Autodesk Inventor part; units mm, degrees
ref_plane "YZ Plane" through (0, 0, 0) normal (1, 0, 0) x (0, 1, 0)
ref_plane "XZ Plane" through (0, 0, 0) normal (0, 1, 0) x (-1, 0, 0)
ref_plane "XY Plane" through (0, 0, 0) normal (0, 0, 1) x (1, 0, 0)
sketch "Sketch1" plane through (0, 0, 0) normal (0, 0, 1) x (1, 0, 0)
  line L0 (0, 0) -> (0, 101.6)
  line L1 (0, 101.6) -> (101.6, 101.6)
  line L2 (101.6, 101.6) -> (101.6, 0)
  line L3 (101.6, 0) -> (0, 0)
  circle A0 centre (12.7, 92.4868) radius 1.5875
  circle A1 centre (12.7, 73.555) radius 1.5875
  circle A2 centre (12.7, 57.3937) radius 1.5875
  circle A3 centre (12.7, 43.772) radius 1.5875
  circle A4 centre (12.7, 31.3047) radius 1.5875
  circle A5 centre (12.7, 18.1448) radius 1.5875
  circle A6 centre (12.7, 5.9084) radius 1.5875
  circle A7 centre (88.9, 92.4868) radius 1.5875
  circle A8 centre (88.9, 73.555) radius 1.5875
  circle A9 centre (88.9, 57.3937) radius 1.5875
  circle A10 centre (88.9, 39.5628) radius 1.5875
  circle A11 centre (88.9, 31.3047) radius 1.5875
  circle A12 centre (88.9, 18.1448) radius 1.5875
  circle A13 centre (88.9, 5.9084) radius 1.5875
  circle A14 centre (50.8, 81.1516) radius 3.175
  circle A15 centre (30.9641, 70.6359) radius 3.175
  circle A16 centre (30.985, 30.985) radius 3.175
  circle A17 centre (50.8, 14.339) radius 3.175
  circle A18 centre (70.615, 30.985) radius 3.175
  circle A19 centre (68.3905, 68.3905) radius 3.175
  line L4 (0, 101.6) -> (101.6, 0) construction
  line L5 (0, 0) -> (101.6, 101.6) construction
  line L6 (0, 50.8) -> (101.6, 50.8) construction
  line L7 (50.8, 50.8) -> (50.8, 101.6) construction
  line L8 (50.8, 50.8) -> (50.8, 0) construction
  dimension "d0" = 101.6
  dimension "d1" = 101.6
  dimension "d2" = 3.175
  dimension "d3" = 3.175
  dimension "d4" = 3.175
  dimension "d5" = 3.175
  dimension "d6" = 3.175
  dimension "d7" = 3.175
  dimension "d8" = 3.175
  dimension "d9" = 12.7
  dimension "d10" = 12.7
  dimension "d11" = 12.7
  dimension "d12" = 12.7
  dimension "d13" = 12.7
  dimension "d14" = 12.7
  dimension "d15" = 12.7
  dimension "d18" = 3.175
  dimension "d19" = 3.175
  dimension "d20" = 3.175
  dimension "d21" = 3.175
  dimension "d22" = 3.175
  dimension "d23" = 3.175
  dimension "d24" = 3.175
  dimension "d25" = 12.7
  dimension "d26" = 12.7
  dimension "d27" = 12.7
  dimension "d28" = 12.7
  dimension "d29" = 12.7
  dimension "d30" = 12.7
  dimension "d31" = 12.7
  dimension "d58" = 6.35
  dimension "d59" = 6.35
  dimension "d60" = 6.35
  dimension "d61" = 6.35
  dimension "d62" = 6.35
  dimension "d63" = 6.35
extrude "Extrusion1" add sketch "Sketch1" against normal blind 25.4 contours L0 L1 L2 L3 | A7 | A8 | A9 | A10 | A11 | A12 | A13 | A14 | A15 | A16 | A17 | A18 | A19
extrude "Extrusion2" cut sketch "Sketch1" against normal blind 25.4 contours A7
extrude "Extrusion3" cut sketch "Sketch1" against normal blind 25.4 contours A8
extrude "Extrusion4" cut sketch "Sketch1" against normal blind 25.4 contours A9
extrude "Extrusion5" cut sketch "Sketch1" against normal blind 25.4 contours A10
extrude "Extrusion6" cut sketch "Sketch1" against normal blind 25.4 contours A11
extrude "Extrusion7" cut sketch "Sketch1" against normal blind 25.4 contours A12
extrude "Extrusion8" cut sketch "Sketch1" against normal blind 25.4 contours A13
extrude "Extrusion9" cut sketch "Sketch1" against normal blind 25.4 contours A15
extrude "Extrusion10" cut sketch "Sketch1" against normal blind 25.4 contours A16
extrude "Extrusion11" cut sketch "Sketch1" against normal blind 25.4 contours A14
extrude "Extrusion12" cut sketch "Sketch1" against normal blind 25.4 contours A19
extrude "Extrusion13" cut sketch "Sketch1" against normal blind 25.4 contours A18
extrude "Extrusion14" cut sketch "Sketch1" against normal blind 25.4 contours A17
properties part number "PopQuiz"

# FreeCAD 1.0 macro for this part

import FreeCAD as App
import Part
import Sketcher
Q = App.Units.Quantity

doc = App.newDocument("Part")
body = doc.addObject("PartDesign::Body", "Body")

# Sketch on XY plane
sketch1 = body.newObject("Sketcher::SketchObject", "Sketch")
sketch1.AttachmentSupport = (doc.getObject("XY_Plane"), [""])
sketch1.MapMode = "FlatFace"
sketch1.addGeometry(Part.LineSegment(App.Vector(0, 101.6, 0), App.Vector(0, 0, 0)), False)
sketch1.addGeometry(Part.LineSegment(App.Vector(0, 0, 0), App.Vector(101.6, 0, 0)), False)
sketch1.addGeometry(Part.LineSegment(App.Vector(101.6, 0, 0), App.Vector(101.6, 101.6, 0)), False)
sketch1.addGeometry(Part.LineSegment(App.Vector(101.6, 101.6, 0), App.Vector(0, 101.6, 0)), False)
sketch1.addGeometry(Part.Circle(App.Vector(12.7, 5.9084, 0), App.Vector(0, 0, 1), 1.5875), False)
sketch1.addGeometry(Part.Circle(App.Vector(12.7, 18.1448, 0), App.Vector(0, 0, 1), 1.5875), False)
sketch1.addGeometry(Part.Circle(App.Vector(12.7, 31.3047, 0), App.Vector(0, 0, 1), 1.5875), False)
sketch1.addGeometry(Part.Circle(App.Vector(12.7, 43.772, 0), App.Vector(0, 0, 1), 1.5875), False)
sketch1.addGeometry(Part.Circle(App.Vector(12.7, 57.3937, 0), App.Vector(0, 0, 1), 1.5875), False)
sketch1.addGeometry(Part.Circle(App.Vector(12.7, 73.555, 0), App.Vector(0, 0, 1), 1.5875), False)
sketch1.addGeometry(Part.Circle(App.Vector(12.7, 92.4868, 0), App.Vector(0, 0, 1), 1.5875), False)
sketch1.addConstraint(Sketcher.Constraint("Coincident", 0, 2, 1, 1))
sketch1.addConstraint(Sketcher.Constraint("Coincident", 1, 2, 2, 1))
sketch1.addConstraint(Sketcher.Constraint("Coincident", 2, 2, 3, 1))
sketch1.addConstraint(Sketcher.Constraint("Coincident", 3, 2, 0, 1))
sketch1.addConstraint(Sketcher.Constraint("Vertical", 0))
sketch1.addConstraint(Sketcher.Constraint("Horizontal", 1))
sketch1.addConstraint(Sketcher.Constraint("Vertical", 2))
sketch1.addConstraint(Sketcher.Constraint("Horizontal", 3))
sketch1.addConstraint(Sketcher.Constraint("Coincident", 0, 2, -1, 1))
sketch1.addConstraint(Sketcher.Constraint("Equal", 4, 5))
sketch1.addConstraint(Sketcher.Constraint("Equal", 5, 6))
sketch1.addConstraint(Sketcher.Constraint("Equal", 6, 7))
sketch1.addConstraint(Sketcher.Constraint("Equal", 7, 8))
sketch1.addConstraint(Sketcher.Constraint("Equal", 8, 9))
sketch1.addConstraint(Sketcher.Constraint("Equal", 9, 10))
sketch1.addConstraint(Sketcher.Constraint("Vertical", 4, 3, 5, 3))
sketch1.addConstraint(Sketcher.Constraint("Vertical", 5, 3, 6, 3))
sketch1.addConstraint(Sketcher.Constraint("Vertical", 6, 3, 7, 3))
sketch1.addConstraint(Sketcher.Constraint("Vertical", 7, 3, 8, 3))
sketch1.addConstraint(Sketcher.Constraint("Vertical", 8, 3, 9, 3))
sketch1.addConstraint(Sketcher.Constraint("Vertical", 9, 3, 10, 3))
sketch1.addConstraint(Sketcher.Constraint("Equal", 3, 0))
sketch1.addConstraint(Sketcher.Constraint("DistanceX", 1, 1, 1, 2, Q("4 in")))
sketch1.addConstraint(Sketcher.Constraint("Diameter", 4, Q("0.125 in")))
sketch1.addConstraint(Sketcher.Constraint("DistanceX", -1, 1, 4, 3, Q("0.5 in")))
sketch1.addConstraint(Sketcher.Constraint("DistanceY", -1, 1, 7, 3, Q("1.7233 in")))
sketch1.addConstraint(Sketcher.Constraint("DistanceY", -1, 1, 8, 3, Q("2.2596 in")))
sketch1.addConstraint(Sketcher.Constraint("DistanceY", 5, 3, 6, 3, Q("0.5181 in")))
sketch1.addConstraint(Sketcher.Constraint("DistanceY", 4, 3, 7, 3, Q("1.4907 in")))
sketch1.addConstraint(Sketcher.Constraint("DistanceY", 6, 3, 9, 3, Q("1.6634 in")))
sketch1.addConstraint(Sketcher.Constraint("DistanceY", 7, 3, 10, 3, Q("1.9179 in")))
sketch1.addConstraint(Sketcher.Constraint("DistanceY", -1, 1, 5, 3, Q("18.1448 mm")))
pad1 = body.newObject("PartDesign::Pad", "Pad")
pad1.Profile = sketch1
pad1.Length = Q("1 in")
pad1.Reversed = True

# Sketch on XY plane
sketch2 = body.newObject("Sketcher::SketchObject", "Sketch001")
sketch2.AttachmentSupport = (doc.getObject("XY_Plane"), [""])
sketch2.MapMode = "FlatFace"
sketch2.addGeometry(Part.Circle(App.Vector(88.9, 92.4868, 0), App.Vector(0, 0, 1), 1.5875), False)
sketch2.addConstraint(Sketcher.Constraint("Diameter", 0, Q("0.125 in")))
sketch2.addConstraint(Sketcher.Constraint("DistanceX", -1, 1, 0, 3, Q("3.5 in")))
sketch2.addConstraint(Sketcher.Constraint("DistanceY", -1, 1, 0, 3, Q("92.4868 mm")))
pocket1 = body.newObject("PartDesign::Pocket", "Pocket")
pocket1.Profile = sketch2
pocket1.Length = Q("1 in")

# Sketch on XY plane
sketch3 = body.newObject("Sketcher::SketchObject", "Sketch002")
sketch3.AttachmentSupport = (doc.getObject("XY_Plane"), [""])
sketch3.MapMode = "FlatFace"
sketch3.addGeometry(Part.Circle(App.Vector(88.9, 73.555, 0), App.Vector(0, 0, 1), 1.5875), False)
sketch3.addConstraint(Sketcher.Constraint("Diameter", 0, Q("0.125 in")))
sketch3.addConstraint(Sketcher.Constraint("DistanceX", -1, 1, 0, 3, Q("3.5 in")))
sketch3.addConstraint(Sketcher.Constraint("DistanceY", -1, 1, 0, 3, Q("73.555 mm")))
pocket2 = body.newObject("PartDesign::Pocket", "Pocket001")
pocket2.Profile = sketch3
pocket2.Length = Q("1 in")

# Sketch on XY plane
sketch4 = body.newObject("Sketcher::SketchObject", "Sketch003")
sketch4.AttachmentSupport = (doc.getObject("XY_Plane"), [""])
sketch4.MapMode = "FlatFace"
sketch4.addGeometry(Part.Circle(App.Vector(88.9, 57.3937, 0), App.Vector(0, 0, 1), 1.5875), False)
sketch4.addConstraint(Sketcher.Constraint("Diameter", 0, Q("0.125 in")))
sketch4.addConstraint(Sketcher.Constraint("DistanceX", -1, 1, 0, 3, Q("3.5 in")))
sketch4.addConstraint(Sketcher.Constraint("DistanceY", -1, 1, 0, 3, Q("2.2596 in")))
pocket3 = body.newObject("PartDesign::Pocket", "Pocket002")
pocket3.Profile = sketch4
pocket3.Length = Q("1 in")

# Sketch on XY plane
sketch5 = body.newObject("Sketcher::SketchObject", "Sketch004")
sketch5.AttachmentSupport = (doc.getObject("XY_Plane"), [""])
sketch5.MapMode = "FlatFace"
sketch5.addGeometry(Part.Circle(App.Vector(88.9, 39.5628, 0), App.Vector(0, 0, 1), 1.5875), False)
sketch5.addConstraint(Sketcher.Constraint("Diameter", 0, Q("0.125 in")))
sketch5.addConstraint(Sketcher.Constraint("DistanceX", -1, 1, 0, 3, Q("3.5 in")))
sketch5.addConstraint(Sketcher.Constraint("DistanceY", -1, 1, 0, 3, Q("1.5576 in")))
pocket4 = body.newObject("PartDesign::Pocket", "Pocket003")
pocket4.Profile = sketch5
pocket4.Length = Q("1 in")

# Sketch on XY plane
sketch6 = body.newObject("Sketcher::SketchObject", "Sketch005")
sketch6.AttachmentSupport = (doc.getObject("XY_Plane"), [""])
sketch6.MapMode = "FlatFace"
sketch6.addGeometry(Part.Circle(App.Vector(88.9, 31.3047, 0), App.Vector(0, 0, 1), 1.5875), False)
sketch6.addConstraint(Sketcher.Constraint("Diameter", 0, Q("0.125 in")))
sketch6.addConstraint(Sketcher.Constraint("DistanceX", -1, 1, 0, 3, Q("3.5 in")))
sketch6.addConstraint(Sketcher.Constraint("DistanceY", -1, 1, 0, 3, Q("31.3047 mm")))
pocket5 = body.newObject("PartDesign::Pocket", "Pocket004")
pocket5.Profile = sketch6
pocket5.Length = Q("1 in")

# Sketch on XY plane
sketch7 = body.newObject("Sketcher::SketchObject", "Sketch006")
sketch7.AttachmentSupport = (doc.getObject("XY_Plane"), [""])
sketch7.MapMode = "FlatFace"
sketch7.addGeometry(Part.Circle(App.Vector(88.9, 18.1448, 0), App.Vector(0, 0, 1), 1.5875), False)
sketch7.addConstraint(Sketcher.Constraint("Diameter", 0, Q("0.125 in")))
sketch7.addConstraint(Sketcher.Constraint("DistanceX", -1, 1, 0, 3, Q("3.5 in")))
sketch7.addConstraint(Sketcher.Constraint("DistanceY", -1, 1, 0, 3, Q("18.1448 mm")))
pocket6 = body.newObject("PartDesign::Pocket", "Pocket005")
pocket6.Profile = sketch7
pocket6.Length = Q("1 in")

# Sketch on XY plane
sketch8 = body.newObject("Sketcher::SketchObject", "Sketch007")
sketch8.AttachmentSupport = (doc.getObject("XY_Plane"), [""])
sketch8.MapMode = "FlatFace"
sketch8.addGeometry(Part.Circle(App.Vector(88.9, 5.9084, 0), App.Vector(0, 0, 1), 1.5875), False)
sketch8.addConstraint(Sketcher.Constraint("Diameter", 0, Q("0.125 in")))
sketch8.addConstraint(Sketcher.Constraint("DistanceX", -1, 1, 0, 3, Q("3.5 in")))
sketch8.addConstraint(Sketcher.Constraint("DistanceY", -1, 1, 0, 3, Q("5.9084 mm")))
pocket7 = body.newObject("PartDesign::Pocket", "Pocket006")
pocket7.Profile = sketch8
pocket7.Length = Q("1 in")

# Sketch on XY plane
sketch9 = body.newObject("Sketcher::SketchObject", "Sketch008")
sketch9.AttachmentSupport = (doc.getObject("XY_Plane"), [""])
sketch9.MapMode = "FlatFace"
sketch9.addGeometry(Part.Circle(App.Vector(30.9641, 70.6359, 0), App.Vector(0, 0, 1), 3.175), False)
sketch9.addConstraint(Sketcher.Constraint("Diameter", 0, Q("0.25 in")))
sketch9.addConstraint(Sketcher.Constraint("DistanceX", -1, 1, 0, 3, Q("30.964 mm")))
sketch9.addConstraint(Sketcher.Constraint("DistanceY", -1, 1, 0, 3, Q("70.636 mm")))
pocket8 = body.newObject("PartDesign::Pocket", "Pocket007")
pocket8.Profile = sketch9
pocket8.Length = Q("1 in")

# Sketch on XY plane
sketch10 = body.newObject("Sketcher::SketchObject", "Sketch009")
sketch10.AttachmentSupport = (doc.getObject("XY_Plane"), [""])
sketch10.MapMode = "FlatFace"
sketch10.addGeometry(Part.Circle(App.Vector(30.985, 30.985, 0), App.Vector(0, 0, 1), 3.175), False)
sketch10.addConstraint(Sketcher.Constraint("Diameter", 0, Q("0.25 in")))
sketch10.addConstraint(Sketcher.Constraint("DistanceX", -1, 1, 0, 3, Q("30.985 mm")))
sketch10.addConstraint(Sketcher.Constraint("DistanceY", -1, 1, 0, 3, Q("30.985 mm")))
pocket9 = body.newObject("PartDesign::Pocket", "Pocket008")
pocket9.Profile = sketch10
pocket9.Length = Q("1 in")

# Sketch on XY plane
sketch11 = body.newObject("Sketcher::SketchObject", "Sketch010")
sketch11.AttachmentSupport = (doc.getObject("XY_Plane"), [""])
sketch11.MapMode = "FlatFace"
sketch11.addGeometry(Part.Circle(App.Vector(50.8, 81.1516, 0), App.Vector(0, 0, 1), 3.175), False)
sketch11.addConstraint(Sketcher.Constraint("Diameter", 0, Q("0.25 in")))
sketch11.addConstraint(Sketcher.Constraint("DistanceX", -1, 1, 0, 3, Q("2 in")))
sketch11.addConstraint(Sketcher.Constraint("DistanceY", -1, 1, 0, 3, Q("81.1516 mm")))
pocket10 = body.newObject("PartDesign::Pocket", "Pocket009")
pocket10.Profile = sketch11
pocket10.Length = Q("1 in")

# Sketch on XY plane
sketch12 = body.newObject("Sketcher::SketchObject", "Sketch011")
sketch12.AttachmentSupport = (doc.getObject("XY_Plane"), [""])
sketch12.MapMode = "FlatFace"
sketch12.addGeometry(Part.Circle(App.Vector(68.3905, 68.3905, 0), App.Vector(0, 0, 1), 3.175), False)
sketch12.addConstraint(Sketcher.Constraint("Diameter", 0, Q("0.25 in")))
sketch12.addConstraint(Sketcher.Constraint("DistanceX", -1, 1, 0, 3, Q("68.3905 mm")))
sketch12.addConstraint(Sketcher.Constraint("DistanceY", -1, 1, 0, 3, Q("68.3905 mm")))
pocket11 = body.newObject("PartDesign::Pocket", "Pocket010")
pocket11.Profile = sketch12
pocket11.Length = Q("1 in")

# Sketch on XY plane
sketch13 = body.newObject("Sketcher::SketchObject", "Sketch012")
sketch13.AttachmentSupport = (doc.getObject("XY_Plane"), [""])
sketch13.MapMode = "FlatFace"
sketch13.addGeometry(Part.Circle(App.Vector(70.615, 30.985, 0), App.Vector(0, 0, 1), 3.175), False)
sketch13.addConstraint(Sketcher.Constraint("Diameter", 0, Q("0.25 in")))
sketch13.addConstraint(Sketcher.Constraint("DistanceX", -1, 1, 0, 3, Q("70.615 mm")))
sketch13.addConstraint(Sketcher.Constraint("DistanceY", -1, 1, 0, 3, Q("30.985 mm")))
pocket12 = body.newObject("PartDesign::Pocket", "Pocket011")
pocket12.Profile = sketch13
pocket12.Length = Q("1 in")

# Sketch on XY plane
sketch14 = body.newObject("Sketcher::SketchObject", "Sketch013")
sketch14.AttachmentSupport = (doc.getObject("XY_Plane"), [""])
sketch14.MapMode = "FlatFace"
sketch14.addGeometry(Part.Circle(App.Vector(50.8, 14.339, 0), App.Vector(0, 0, 1), 3.175), False)
sketch14.addConstraint(Sketcher.Constraint("Diameter", 0, Q("0.25 in")))
sketch14.addConstraint(Sketcher.Constraint("DistanceX", -1, 1, 0, 3, Q("2 in")))
sketch14.addConstraint(Sketcher.Constraint("DistanceY", -1, 1, 0, 3, Q("14.339 mm")))
pocket13 = body.newObject("PartDesign::Pocket", "Pocket012")
pocket13.Profile = sketch14
pocket13.Length = Q("1 in")

doc.recompute()
